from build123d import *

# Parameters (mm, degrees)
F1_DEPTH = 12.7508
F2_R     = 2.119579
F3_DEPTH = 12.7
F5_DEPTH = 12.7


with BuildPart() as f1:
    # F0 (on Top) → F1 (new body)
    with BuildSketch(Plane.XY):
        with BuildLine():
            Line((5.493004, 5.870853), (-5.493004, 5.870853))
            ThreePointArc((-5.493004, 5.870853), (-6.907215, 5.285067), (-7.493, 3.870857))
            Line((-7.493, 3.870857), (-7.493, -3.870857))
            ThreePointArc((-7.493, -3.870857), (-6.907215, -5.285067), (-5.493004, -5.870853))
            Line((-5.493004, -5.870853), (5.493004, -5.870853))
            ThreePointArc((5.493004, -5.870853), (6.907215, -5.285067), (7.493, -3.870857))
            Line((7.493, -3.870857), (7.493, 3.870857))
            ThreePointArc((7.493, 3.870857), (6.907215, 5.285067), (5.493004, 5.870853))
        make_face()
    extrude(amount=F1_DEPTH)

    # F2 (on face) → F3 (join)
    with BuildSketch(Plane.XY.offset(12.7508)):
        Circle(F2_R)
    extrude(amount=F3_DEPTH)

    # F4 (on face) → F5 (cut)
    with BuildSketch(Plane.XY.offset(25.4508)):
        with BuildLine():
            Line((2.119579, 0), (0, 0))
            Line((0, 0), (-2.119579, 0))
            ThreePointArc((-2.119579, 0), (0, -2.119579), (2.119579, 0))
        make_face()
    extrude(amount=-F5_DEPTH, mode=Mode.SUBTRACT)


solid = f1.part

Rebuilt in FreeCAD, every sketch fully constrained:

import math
import FreeCAD as App
import Part
import Sketcher

V = App.Vector
Q = App.Units.Quantity

doc = App.newDocument("Part")
body = doc.addObject("PartDesign::Body", "Body")

sketch1 = body.newObject("Sketcher::SketchObject", "Sketch")
sketch1.AttachmentSupport = (doc.getObject("XY_Plane"), [""])
sketch1.MapMode = "FlatFace"
sketch1.addGeometry(Part.LineSegment(V(5.493004, 5.870853, 0), V(-5.493004, 5.870853, 0)), False)
sketch1.addGeometry(Part.ArcOfCircle(Part.Circle(V(-5.493003, 3.870856, 0), V(0, 0, 1), 1.999997), math.radians(90.000023), math.radians(179.999977)), False)
sketch1.addGeometry(Part.LineSegment(V(-7.493, 3.870857, 0), V(-7.493, -3.870857, 0)), False)
sketch1.addGeometry(Part.ArcOfCircle(Part.Circle(V(-5.493003, -3.870856, 0), V(0, 0, 1), 1.999997), math.radians(-179.999977), math.radians(-90.000023)), False)
sketch1.addGeometry(Part.LineSegment(V(-5.493004, -5.870853, 0), V(5.493004, -5.870853, 0)), False)
sketch1.addGeometry(Part.ArcOfCircle(Part.Circle(V(5.493003, -3.870856, 0), V(0, 0, 1), 1.999997), math.radians(-89.999977), math.radians(-0.000023)), False)
sketch1.addGeometry(Part.LineSegment(V(7.493, -3.870857, 0), V(7.493, 3.870857, 0)), False)
sketch1.addGeometry(Part.ArcOfCircle(Part.Circle(V(5.493003, 3.870856, 0), V(0, 0, 1), 1.999997), math.radians(0.000023), math.radians(89.999977)), False)
sketch1.addConstraint(Sketcher.Constraint("Tangent", 0, 2, 1, 1))
sketch1.addConstraint(Sketcher.Constraint("Tangent", 1, 2, 2, 1))
sketch1.addConstraint(Sketcher.Constraint("Tangent", 2, 2, 3, 1))
sketch1.addConstraint(Sketcher.Constraint("Tangent", 3, 2, 4, 1))
sketch1.addConstraint(Sketcher.Constraint("Tangent", 4, 2, 5, 1))
sketch1.addConstraint(Sketcher.Constraint("Tangent", 5, 2, 6, 1))
sketch1.addConstraint(Sketcher.Constraint("Tangent", 6, 2, 7, 1))
sketch1.addConstraint(Sketcher.Constraint("Tangent", 7, 2, 0, 1))
sketch1.addConstraint(Sketcher.Constraint("Horizontal", 0))
sketch1.addConstraint(Sketcher.Constraint("Vertical", 2))
sketch1.addConstraint(Sketcher.Constraint("Horizontal", 4))
sketch1.addConstraint(Sketcher.Constraint("Vertical", 6))
sketch1.addConstraint(Sketcher.Constraint("Equal", 1, 3))
sketch1.addConstraint(Sketcher.Constraint("Equal", 3, 5))
sketch1.addConstraint(Sketcher.Constraint("Equal", 5, 7))
sketch1.addConstraint(Sketcher.Constraint("Symmetric", 1, 3, 5, 3, -1, 1))
sketch1.addConstraint(Sketcher.Constraint("DistanceX", 1, 2, -1, 1, Q("0.295 in")))
sketch1.addConstraint(Sketcher.Constraint("Radius", 1, Q("1.999997 mm")))
sketch1.addConstraint(Sketcher.Constraint("DistanceY", 2, 2, 2, 1, Q("7.741714 mm")))
pad1 = body.newObject("PartDesign::Pad", "Pad")
pad1.Profile = sketch1
pad1.Length = Q("0.502 in")

sketch2 = body.newObject("Sketcher::SketchObject", "Sketch001")
sketch2.AttachmentSupport = (doc.getObject("XY_Plane"), [""])
sketch2.MapMode = "FlatFace"
sketch2.AttachmentOffset = App.Placement(V(0, 0, 0.502 * 25.4), App.Rotation())
sketch2.addGeometry(Part.Circle(V(0, 0, 0), V(0, 0, 1), 2.119579), False)
sketch2.addConstraint(Sketcher.Constraint("Coincident", 0, 3, -1, 1))
sketch2.addConstraint(Sketcher.Constraint("Diameter", 0, Q("4.239158 mm")))
pad2 = body.newObject("PartDesign::Pad", "Pad001")
pad2.Profile = sketch2
pad2.Length = Q("0.5 in")

sketch3 = body.newObject("Sketcher::SketchObject", "Sketch002")
sketch3.AttachmentSupport = (doc.getObject("XY_Plane"), [""])
sketch3.MapMode = "FlatFace"
sketch3.AttachmentOffset = App.Placement(V(0, 0, 1.002 * 25.4), App.Rotation())
sketch3.addGeometry(Part.LineSegment(V(2.119579, 0, 0), V(-2.119579, 0, 0)), False)
sketch3.addGeometry(Part.ArcOfCircle(Part.Circle(V(0, 0, 0), V(0, 0, 1), 2.119579), math.radians(180), math.radians(360)), False)
sketch3.addConstraint(Sketcher.Constraint("Coincident", 0, 1, 1, 2))
sketch3.addConstraint(Sketcher.Constraint("Coincident", 1, 1, 0, 2))
sketch3.addConstraint(Sketcher.Constraint("Horizontal", 0))
sketch3.addConstraint(Sketcher.Constraint("Coincident", 1, 3, -1, 1))
sketch3.addConstraint(Sketcher.Constraint("PointOnObject", 0, 1, -1))
sketch3.addConstraint(Sketcher.Constraint("Radius", 1, Q("2.119579 mm")))
pocket1 = body.newObject("PartDesign::Pocket", "Pocket")
pocket1.Profile = sketch3
pocket1.Length = Q("0.5 in")

doc.recompute()
